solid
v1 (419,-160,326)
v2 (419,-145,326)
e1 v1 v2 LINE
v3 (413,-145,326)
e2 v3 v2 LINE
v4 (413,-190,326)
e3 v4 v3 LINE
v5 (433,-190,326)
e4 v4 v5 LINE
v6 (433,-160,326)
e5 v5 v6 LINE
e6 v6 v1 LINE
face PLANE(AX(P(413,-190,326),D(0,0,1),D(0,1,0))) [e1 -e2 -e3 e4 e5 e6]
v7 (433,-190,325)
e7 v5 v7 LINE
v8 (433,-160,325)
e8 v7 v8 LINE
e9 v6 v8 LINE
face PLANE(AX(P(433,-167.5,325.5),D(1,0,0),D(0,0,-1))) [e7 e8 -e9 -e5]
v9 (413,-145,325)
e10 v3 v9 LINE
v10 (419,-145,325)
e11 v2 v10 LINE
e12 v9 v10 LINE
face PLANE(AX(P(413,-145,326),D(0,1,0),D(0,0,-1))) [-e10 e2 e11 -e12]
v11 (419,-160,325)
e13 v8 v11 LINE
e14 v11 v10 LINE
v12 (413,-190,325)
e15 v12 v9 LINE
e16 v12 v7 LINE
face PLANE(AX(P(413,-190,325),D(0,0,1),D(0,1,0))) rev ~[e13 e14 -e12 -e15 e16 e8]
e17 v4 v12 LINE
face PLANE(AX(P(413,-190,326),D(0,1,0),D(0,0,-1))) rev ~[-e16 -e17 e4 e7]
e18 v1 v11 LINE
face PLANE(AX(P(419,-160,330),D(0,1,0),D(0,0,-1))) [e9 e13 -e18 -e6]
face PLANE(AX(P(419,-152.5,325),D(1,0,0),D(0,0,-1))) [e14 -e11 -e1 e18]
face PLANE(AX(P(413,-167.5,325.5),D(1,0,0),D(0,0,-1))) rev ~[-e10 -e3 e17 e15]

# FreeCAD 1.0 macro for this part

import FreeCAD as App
import Part
import Sketcher
Q = App.Units.Quantity


def add_polygon(sketch, points):
    """Adds a closed chain of lines whose ends are joined by coincident constraints."""
    first, n = sketch.GeometryCount, len(points)
    for a, b in zip(points, points[1:] + points[:1]):
        sketch.addGeometry(Part.LineSegment(App.Vector(*a, 0), App.Vector(*b, 0)), False)
    for i in range(n):
        sketch.addConstraint(Sketcher.Constraint("Coincident", first + i, 2, first + (i + 1) % n, 1))

doc = App.newDocument("Part")
body = doc.addObject("PartDesign::Body", "Body")

# Sketch on XY plane
sketch1 = body.newObject("Sketcher::SketchObject", "Sketch")
sketch1.AttachmentSupport = (doc.getObject("XY_Plane"), [""])
sketch1.MapMode = "FlatFace"
sketch1.AttachmentOffset = App.Placement(App.Vector(0, 0, 60), App.Rotation())
add_polygon(sketch1, [(-4, -212), (-4, -227), (6, -227), (6, -212)])  # lines 0-3
sketch1.addConstraint(Sketcher.Constraint("Vertical", 0))
sketch1.addConstraint(Sketcher.Constraint("Horizontal", 1))
sketch1.addConstraint(Sketcher.Constraint("Vertical", 2))
sketch1.addConstraint(Sketcher.Constraint("Horizontal", 3))
sketch1.addConstraint(Sketcher.Constraint("DistanceX", 1, 1, 1, 2, Q("10 mm")))
sketch1.addConstraint(Sketcher.Constraint("DistanceY", 0, 2, 0, 1, Q("15 mm")))
sketch1.addConstraint(Sketcher.Constraint("DistanceX", 0, 2, -1, 1, Q("4 mm")))
sketch1.addConstraint(Sketcher.Constraint("DistanceY", 0, 2, -1, 1, Q("227 mm")))
pad1 = body.newObject("PartDesign::Pad", "Pad")
pad1.Profile = sketch1
pad1.Length = 14
body2 = doc.addObject("PartDesign::Body", "Body001")

# Sketch on XY plane
sketch2 = body2.newObject("Sketcher::SketchObject", "Sketch001")
sketch2.AttachmentSupport = (doc.getObject("XY_Plane001"), [""])
sketch2.MapMode = "FlatFace"
sketch2.AttachmentOffset = App.Placement(App.Vector(0, 0, 54), App.Rotation())
add_polygon(sketch2, [(0, -212), (0, -257), (1, -257), (1, -212)])  # lines 0-3
sketch2.addConstraint(Sketcher.Constraint("Vertical", 0))
sketch2.addConstraint(Sketcher.Constraint("Horizontal", 1))
sketch2.addConstraint(Sketcher.Constraint("Vertical", 2))
sketch2.addConstraint(Sketcher.Constraint("Horizontal", 3))
sketch2.addConstraint(Sketcher.Constraint("PointOnObject", 0, 2, -2))
sketch2.addConstraint(Sketcher.Constraint("DistanceX", 1, 1, 1, 2, Q("1 mm")))
sketch2.addConstraint(Sketcher.Constraint("DistanceY", 0, 2, 0, 1, Q("45 mm")))
sketch2.addConstraint(Sketcher.Constraint("DistanceY", 0, 2, -1, 1, Q("257 mm")))
pad2 = body2.newObject("PartDesign::Pad", "Pad001")
pad2.Profile = sketch2
pad2.Length = 20
doc.recompute()

boolean = body2.newObject("PartDesign::Boolean", "Boolean")
boolean.Type = "Cut"
boolean.addObjects([body])
body3 = doc.addObject("PartDesign::Body", "Body002")
doc.recompute()

body2.Placement = App.Placement(App.Vector(0, 0, 0), App.Rotation(App.Vector(0, 1, 0), 90))
boolean2 = body3.newObject("PartDesign::Boolean", "Boolean001")
boolean2.Type = "Fuse"
boolean2.addObjects([body2])
body4 = doc.addObject("PartDesign::Body", "Body003")
doc.recompute()

body3.Placement = App.Placement(App.Vector(359, 67, 326), App.Rotation(App.Vector(0, 0, 1), 0))
boolean3 = body4.newObject("PartDesign::Boolean", "Boolean002")
boolean3.Type = "Fuse"
boolean3.addObjects([body3])

doc.recompute()
